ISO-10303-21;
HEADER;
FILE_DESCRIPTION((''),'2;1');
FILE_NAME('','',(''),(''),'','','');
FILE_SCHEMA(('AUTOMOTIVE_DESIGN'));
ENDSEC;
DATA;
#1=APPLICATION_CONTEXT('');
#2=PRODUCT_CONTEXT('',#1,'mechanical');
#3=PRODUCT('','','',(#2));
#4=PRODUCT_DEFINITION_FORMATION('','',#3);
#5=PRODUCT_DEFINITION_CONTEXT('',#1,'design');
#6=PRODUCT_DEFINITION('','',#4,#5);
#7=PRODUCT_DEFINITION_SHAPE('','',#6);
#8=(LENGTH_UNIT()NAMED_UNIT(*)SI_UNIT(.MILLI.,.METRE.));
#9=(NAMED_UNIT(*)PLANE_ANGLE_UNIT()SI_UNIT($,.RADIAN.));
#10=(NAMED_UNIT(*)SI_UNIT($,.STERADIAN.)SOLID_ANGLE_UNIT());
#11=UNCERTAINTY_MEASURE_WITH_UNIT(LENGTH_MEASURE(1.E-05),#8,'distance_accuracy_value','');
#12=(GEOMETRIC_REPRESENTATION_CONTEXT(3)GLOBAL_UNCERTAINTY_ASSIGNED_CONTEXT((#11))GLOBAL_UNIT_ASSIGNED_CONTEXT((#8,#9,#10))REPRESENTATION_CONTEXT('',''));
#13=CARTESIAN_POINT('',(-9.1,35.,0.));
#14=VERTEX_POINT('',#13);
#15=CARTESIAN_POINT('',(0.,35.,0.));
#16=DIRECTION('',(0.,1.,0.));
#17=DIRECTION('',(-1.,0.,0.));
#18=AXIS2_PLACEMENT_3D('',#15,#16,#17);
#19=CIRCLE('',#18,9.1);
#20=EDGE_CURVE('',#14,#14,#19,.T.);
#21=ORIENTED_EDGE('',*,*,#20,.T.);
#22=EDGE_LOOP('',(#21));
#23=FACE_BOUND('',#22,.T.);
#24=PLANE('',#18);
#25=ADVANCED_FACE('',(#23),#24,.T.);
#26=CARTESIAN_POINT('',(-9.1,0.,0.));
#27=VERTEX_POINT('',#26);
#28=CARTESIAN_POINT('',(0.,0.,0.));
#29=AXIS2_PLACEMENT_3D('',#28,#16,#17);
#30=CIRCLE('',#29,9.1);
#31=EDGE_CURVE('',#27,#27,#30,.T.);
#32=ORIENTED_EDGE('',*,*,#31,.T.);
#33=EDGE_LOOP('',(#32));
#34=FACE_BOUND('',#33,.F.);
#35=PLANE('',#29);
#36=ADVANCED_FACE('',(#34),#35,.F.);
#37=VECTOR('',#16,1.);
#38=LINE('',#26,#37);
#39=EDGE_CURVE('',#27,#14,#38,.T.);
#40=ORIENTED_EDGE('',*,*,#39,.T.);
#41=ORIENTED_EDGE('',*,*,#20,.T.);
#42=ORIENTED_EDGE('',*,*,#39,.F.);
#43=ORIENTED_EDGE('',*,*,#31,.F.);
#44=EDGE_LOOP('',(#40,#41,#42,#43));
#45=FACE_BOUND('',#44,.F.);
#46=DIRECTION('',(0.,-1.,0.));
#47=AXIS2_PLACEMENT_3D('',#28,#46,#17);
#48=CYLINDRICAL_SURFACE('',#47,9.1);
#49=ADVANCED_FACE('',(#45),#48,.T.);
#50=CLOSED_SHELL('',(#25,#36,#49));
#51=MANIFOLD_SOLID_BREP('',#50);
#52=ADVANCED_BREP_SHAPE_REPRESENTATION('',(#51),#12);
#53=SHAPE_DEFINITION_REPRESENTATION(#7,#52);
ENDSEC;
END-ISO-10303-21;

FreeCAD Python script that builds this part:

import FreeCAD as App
import Part
import Sketcher

doc = App.newDocument("Part")
params = doc.addObject("Spreadsheet::Sheet", "Params")
for row, (alias, value) in enumerate([
    ("sketch1_diameter", "18.2 mm"),
    ("pad1_length", "35 mm"),
], start=1):
    params.set(f"A{row}", alias)
    params.set(f"B{row}", "=" + value)
    params.setAlias(f"B{row}", alias)

body = doc.addObject("PartDesign::Body", "Body")

# Sketch on XZ plane
sketch1 = body.newObject("Sketcher::SketchObject", "Sketch")
sketch1.AttachmentSupport = (doc.getObject("XZ_Plane"), [""])
sketch1.MapMode = "FlatFace"
sketch1.addGeometry(Part.Circle(App.Vector(0, 0, 0), App.Vector(0, 0, 1), 9), False)
sketch1.addConstraint(Sketcher.Constraint("Coincident", 0, 3, -1, 1))
sketch1.addConstraint(Sketcher.Constraint("Diameter", 0, 18.2))
sketch1.setExpression("Constraints[1]", "Params.sketch1_diameter")
pad1 = body.newObject("PartDesign::Pad", "Pad")
pad1.Profile = sketch1
pad1.setExpression("Length", "Params.pad1_length")
pad1.Reversed = True

doc.recompute()
